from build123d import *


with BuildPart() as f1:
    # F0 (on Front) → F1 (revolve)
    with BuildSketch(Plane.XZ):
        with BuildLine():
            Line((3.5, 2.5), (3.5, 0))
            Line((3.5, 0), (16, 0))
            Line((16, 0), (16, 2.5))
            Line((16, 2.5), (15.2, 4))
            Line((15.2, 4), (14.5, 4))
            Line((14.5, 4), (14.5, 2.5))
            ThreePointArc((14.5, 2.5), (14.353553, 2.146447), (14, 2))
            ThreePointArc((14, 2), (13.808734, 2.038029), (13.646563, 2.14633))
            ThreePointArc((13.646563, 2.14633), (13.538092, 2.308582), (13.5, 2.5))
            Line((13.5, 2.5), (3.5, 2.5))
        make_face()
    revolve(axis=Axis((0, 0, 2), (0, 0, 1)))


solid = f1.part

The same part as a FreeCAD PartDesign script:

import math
import FreeCAD as App
import Part
import Sketcher

V = App.Vector
Q = App.Units.Quantity

doc = App.newDocument("Part")
params = doc.addObject("Spreadsheet::Sheet", "Params")
for row, (alias, value) in enumerate([
    ("sketch1_radius", "0.500001 mm"),
    ("sketch1_width", "10 mm"),
    ("sketch1_width2", "12.5 mm"),
    ("sketch1_width3", "0.7 mm"),
    ("sketch1_height", "2.5 mm"),
    ("revolution_angle", "360 deg"),
], start=1):
    params.set(f"A{row}", alias)
    params.set(f"B{row}", "=" + value)
    params.setAlias(f"B{row}", alias)

body = doc.addObject("PartDesign::Body", "Body")

# Sketch on XZ plane
sketch1 = body.newObject("Sketcher::SketchObject", "Sketch")
sketch1.AttachmentSupport = (doc.getObject("XZ_Plane"), [""])
sketch1.MapMode = "FlatFace"
sketch1.addGeometry([
    Part.LineSegment(V(3.5, 2.5, 0), V(3.5, 0, 0)),  # 0
    Part.LineSegment(V(3.5, 0, 0), V(16, 0, 0)),  # 1
    Part.LineSegment(V(16, 0, 0), V(16, 2.5, 0)),  # 2
    Part.LineSegment(V(16, 2.5, 0), V(15.2, 4, 0)),  # 3
    Part.LineSegment(V(15.2, 4, 0), V(14.5, 4, 0)),  # 4
    Part.LineSegment(V(14.5, 4, 0), V(14.5, 2.5, 0)),  # 5
    Part.ArcOfCircle(Part.Circle(V(13.999999, 2.500001, 0), V(0, 0, 1), 0.500001), math.radians(-89.999847), math.radians(-0.000153)),  # 6
    Part.ArcOfCircle(Part.Circle(V(14.000001, 2.500003, 0), V(0, 0, 1), 0.500003), math.radians(-134.980978), math.radians(-90.000092)),  # 7
    Part.ArcOfCircle(Part.Circle(V(14.000003, 2.500001, 0), V(0, 0, 1), 0.500003), math.radians(-179.999887), math.radians(-134.981284)),  # 8
    Part.LineSegment(V(13.5, 2.5, 0), V(3.5, 2.5, 0)),  # 9
], False)
sketch1.addConstraint([
    Sketcher.Constraint("Coincident", 0, 2, 1, 1),
    Sketcher.Constraint("Coincident", 1, 2, 2, 1),
    Sketcher.Constraint("Coincident", 2, 2, 3, 1),
    Sketcher.Constraint("Coincident", 3, 2, 4, 1),
    Sketcher.Constraint("Coincident", 4, 2, 5, 1),
    Sketcher.Constraint("Coincident", 5, 2, 6, 2),
    Sketcher.Constraint("Coincident", 6, 1, 7, 2),
    Sketcher.Constraint("Coincident", 7, 1, 8, 2),
    Sketcher.Constraint("Coincident", 8, 1, 9, 1),
    Sketcher.Constraint("Coincident", 9, 2, 0, 1),
    Sketcher.Constraint("Vertical", 0),
    Sketcher.Constraint("Horizontal", 1),
    Sketcher.Constraint("Vertical", 2),
    Sketcher.Constraint("Horizontal", 4),
    Sketcher.Constraint("Vertical", 5),
    Sketcher.Constraint("Horizontal", 9),
    Sketcher.Constraint("Coincident", 7, 3, 6, 3),
    Sketcher.Constraint("Coincident", 8, 3, 6, 3),
    Sketcher.Constraint("PointOnObject", 0, 2, -1),
    Sketcher.Constraint("Horizontal", 8, 3, 2, 2),
    Sketcher.Constraint("Horizontal", 2, 2, 5, 2),
    Sketcher.Constraint("Horizontal", 5, 2, 8, 1),
    Sketcher.Constraint("Vertical", 7, 3, 6, 1),
    Sketcher.Constraint("Radius", 6, Q("0.500001 mm")),
    Sketcher.Constraint("DistanceX", 9, 2, 9, 1, Q("10 mm")),
    Sketcher.Constraint("DistanceX", 1, 1, 1, 2, Q("12.5 mm")),
    Sketcher.Constraint("DistanceX", 4, 2, 4, 1, Q("0.7 mm")),
    Sketcher.Constraint("DistanceY", 0, 2, 0, 1, Q("2.5 mm")),
    Sketcher.Constraint("DistanceY", 5, 2, 5, 1, Q("1.5 mm")),
    Sketcher.Constraint("DistanceX", -1, 1, 6, 3, Q("13.999999 mm")),
    Sketcher.Constraint("DistanceY", -1, 1, 7, 1, Q("2.14633 mm")),
])
sketch1.setExpression("Constraints[23]", "Params.sketch1_radius")
sketch1.setExpression("Constraints[24]", "Params.sketch1_width")
sketch1.setExpression("Constraints[25]", "Params.sketch1_width2")
sketch1.setExpression("Constraints[26]", "Params.sketch1_width3")
sketch1.setExpression("Constraints[27]", "Params.sketch1_height")
revolution = body.newObject("PartDesign::Revolution", "Revolution")
revolution.Profile = sketch1
revolution.ReferenceAxis = (sketch1, ["V_Axis"])
revolution.setExpression("Angle", "Params.revolution_angle")

doc.recompute()
